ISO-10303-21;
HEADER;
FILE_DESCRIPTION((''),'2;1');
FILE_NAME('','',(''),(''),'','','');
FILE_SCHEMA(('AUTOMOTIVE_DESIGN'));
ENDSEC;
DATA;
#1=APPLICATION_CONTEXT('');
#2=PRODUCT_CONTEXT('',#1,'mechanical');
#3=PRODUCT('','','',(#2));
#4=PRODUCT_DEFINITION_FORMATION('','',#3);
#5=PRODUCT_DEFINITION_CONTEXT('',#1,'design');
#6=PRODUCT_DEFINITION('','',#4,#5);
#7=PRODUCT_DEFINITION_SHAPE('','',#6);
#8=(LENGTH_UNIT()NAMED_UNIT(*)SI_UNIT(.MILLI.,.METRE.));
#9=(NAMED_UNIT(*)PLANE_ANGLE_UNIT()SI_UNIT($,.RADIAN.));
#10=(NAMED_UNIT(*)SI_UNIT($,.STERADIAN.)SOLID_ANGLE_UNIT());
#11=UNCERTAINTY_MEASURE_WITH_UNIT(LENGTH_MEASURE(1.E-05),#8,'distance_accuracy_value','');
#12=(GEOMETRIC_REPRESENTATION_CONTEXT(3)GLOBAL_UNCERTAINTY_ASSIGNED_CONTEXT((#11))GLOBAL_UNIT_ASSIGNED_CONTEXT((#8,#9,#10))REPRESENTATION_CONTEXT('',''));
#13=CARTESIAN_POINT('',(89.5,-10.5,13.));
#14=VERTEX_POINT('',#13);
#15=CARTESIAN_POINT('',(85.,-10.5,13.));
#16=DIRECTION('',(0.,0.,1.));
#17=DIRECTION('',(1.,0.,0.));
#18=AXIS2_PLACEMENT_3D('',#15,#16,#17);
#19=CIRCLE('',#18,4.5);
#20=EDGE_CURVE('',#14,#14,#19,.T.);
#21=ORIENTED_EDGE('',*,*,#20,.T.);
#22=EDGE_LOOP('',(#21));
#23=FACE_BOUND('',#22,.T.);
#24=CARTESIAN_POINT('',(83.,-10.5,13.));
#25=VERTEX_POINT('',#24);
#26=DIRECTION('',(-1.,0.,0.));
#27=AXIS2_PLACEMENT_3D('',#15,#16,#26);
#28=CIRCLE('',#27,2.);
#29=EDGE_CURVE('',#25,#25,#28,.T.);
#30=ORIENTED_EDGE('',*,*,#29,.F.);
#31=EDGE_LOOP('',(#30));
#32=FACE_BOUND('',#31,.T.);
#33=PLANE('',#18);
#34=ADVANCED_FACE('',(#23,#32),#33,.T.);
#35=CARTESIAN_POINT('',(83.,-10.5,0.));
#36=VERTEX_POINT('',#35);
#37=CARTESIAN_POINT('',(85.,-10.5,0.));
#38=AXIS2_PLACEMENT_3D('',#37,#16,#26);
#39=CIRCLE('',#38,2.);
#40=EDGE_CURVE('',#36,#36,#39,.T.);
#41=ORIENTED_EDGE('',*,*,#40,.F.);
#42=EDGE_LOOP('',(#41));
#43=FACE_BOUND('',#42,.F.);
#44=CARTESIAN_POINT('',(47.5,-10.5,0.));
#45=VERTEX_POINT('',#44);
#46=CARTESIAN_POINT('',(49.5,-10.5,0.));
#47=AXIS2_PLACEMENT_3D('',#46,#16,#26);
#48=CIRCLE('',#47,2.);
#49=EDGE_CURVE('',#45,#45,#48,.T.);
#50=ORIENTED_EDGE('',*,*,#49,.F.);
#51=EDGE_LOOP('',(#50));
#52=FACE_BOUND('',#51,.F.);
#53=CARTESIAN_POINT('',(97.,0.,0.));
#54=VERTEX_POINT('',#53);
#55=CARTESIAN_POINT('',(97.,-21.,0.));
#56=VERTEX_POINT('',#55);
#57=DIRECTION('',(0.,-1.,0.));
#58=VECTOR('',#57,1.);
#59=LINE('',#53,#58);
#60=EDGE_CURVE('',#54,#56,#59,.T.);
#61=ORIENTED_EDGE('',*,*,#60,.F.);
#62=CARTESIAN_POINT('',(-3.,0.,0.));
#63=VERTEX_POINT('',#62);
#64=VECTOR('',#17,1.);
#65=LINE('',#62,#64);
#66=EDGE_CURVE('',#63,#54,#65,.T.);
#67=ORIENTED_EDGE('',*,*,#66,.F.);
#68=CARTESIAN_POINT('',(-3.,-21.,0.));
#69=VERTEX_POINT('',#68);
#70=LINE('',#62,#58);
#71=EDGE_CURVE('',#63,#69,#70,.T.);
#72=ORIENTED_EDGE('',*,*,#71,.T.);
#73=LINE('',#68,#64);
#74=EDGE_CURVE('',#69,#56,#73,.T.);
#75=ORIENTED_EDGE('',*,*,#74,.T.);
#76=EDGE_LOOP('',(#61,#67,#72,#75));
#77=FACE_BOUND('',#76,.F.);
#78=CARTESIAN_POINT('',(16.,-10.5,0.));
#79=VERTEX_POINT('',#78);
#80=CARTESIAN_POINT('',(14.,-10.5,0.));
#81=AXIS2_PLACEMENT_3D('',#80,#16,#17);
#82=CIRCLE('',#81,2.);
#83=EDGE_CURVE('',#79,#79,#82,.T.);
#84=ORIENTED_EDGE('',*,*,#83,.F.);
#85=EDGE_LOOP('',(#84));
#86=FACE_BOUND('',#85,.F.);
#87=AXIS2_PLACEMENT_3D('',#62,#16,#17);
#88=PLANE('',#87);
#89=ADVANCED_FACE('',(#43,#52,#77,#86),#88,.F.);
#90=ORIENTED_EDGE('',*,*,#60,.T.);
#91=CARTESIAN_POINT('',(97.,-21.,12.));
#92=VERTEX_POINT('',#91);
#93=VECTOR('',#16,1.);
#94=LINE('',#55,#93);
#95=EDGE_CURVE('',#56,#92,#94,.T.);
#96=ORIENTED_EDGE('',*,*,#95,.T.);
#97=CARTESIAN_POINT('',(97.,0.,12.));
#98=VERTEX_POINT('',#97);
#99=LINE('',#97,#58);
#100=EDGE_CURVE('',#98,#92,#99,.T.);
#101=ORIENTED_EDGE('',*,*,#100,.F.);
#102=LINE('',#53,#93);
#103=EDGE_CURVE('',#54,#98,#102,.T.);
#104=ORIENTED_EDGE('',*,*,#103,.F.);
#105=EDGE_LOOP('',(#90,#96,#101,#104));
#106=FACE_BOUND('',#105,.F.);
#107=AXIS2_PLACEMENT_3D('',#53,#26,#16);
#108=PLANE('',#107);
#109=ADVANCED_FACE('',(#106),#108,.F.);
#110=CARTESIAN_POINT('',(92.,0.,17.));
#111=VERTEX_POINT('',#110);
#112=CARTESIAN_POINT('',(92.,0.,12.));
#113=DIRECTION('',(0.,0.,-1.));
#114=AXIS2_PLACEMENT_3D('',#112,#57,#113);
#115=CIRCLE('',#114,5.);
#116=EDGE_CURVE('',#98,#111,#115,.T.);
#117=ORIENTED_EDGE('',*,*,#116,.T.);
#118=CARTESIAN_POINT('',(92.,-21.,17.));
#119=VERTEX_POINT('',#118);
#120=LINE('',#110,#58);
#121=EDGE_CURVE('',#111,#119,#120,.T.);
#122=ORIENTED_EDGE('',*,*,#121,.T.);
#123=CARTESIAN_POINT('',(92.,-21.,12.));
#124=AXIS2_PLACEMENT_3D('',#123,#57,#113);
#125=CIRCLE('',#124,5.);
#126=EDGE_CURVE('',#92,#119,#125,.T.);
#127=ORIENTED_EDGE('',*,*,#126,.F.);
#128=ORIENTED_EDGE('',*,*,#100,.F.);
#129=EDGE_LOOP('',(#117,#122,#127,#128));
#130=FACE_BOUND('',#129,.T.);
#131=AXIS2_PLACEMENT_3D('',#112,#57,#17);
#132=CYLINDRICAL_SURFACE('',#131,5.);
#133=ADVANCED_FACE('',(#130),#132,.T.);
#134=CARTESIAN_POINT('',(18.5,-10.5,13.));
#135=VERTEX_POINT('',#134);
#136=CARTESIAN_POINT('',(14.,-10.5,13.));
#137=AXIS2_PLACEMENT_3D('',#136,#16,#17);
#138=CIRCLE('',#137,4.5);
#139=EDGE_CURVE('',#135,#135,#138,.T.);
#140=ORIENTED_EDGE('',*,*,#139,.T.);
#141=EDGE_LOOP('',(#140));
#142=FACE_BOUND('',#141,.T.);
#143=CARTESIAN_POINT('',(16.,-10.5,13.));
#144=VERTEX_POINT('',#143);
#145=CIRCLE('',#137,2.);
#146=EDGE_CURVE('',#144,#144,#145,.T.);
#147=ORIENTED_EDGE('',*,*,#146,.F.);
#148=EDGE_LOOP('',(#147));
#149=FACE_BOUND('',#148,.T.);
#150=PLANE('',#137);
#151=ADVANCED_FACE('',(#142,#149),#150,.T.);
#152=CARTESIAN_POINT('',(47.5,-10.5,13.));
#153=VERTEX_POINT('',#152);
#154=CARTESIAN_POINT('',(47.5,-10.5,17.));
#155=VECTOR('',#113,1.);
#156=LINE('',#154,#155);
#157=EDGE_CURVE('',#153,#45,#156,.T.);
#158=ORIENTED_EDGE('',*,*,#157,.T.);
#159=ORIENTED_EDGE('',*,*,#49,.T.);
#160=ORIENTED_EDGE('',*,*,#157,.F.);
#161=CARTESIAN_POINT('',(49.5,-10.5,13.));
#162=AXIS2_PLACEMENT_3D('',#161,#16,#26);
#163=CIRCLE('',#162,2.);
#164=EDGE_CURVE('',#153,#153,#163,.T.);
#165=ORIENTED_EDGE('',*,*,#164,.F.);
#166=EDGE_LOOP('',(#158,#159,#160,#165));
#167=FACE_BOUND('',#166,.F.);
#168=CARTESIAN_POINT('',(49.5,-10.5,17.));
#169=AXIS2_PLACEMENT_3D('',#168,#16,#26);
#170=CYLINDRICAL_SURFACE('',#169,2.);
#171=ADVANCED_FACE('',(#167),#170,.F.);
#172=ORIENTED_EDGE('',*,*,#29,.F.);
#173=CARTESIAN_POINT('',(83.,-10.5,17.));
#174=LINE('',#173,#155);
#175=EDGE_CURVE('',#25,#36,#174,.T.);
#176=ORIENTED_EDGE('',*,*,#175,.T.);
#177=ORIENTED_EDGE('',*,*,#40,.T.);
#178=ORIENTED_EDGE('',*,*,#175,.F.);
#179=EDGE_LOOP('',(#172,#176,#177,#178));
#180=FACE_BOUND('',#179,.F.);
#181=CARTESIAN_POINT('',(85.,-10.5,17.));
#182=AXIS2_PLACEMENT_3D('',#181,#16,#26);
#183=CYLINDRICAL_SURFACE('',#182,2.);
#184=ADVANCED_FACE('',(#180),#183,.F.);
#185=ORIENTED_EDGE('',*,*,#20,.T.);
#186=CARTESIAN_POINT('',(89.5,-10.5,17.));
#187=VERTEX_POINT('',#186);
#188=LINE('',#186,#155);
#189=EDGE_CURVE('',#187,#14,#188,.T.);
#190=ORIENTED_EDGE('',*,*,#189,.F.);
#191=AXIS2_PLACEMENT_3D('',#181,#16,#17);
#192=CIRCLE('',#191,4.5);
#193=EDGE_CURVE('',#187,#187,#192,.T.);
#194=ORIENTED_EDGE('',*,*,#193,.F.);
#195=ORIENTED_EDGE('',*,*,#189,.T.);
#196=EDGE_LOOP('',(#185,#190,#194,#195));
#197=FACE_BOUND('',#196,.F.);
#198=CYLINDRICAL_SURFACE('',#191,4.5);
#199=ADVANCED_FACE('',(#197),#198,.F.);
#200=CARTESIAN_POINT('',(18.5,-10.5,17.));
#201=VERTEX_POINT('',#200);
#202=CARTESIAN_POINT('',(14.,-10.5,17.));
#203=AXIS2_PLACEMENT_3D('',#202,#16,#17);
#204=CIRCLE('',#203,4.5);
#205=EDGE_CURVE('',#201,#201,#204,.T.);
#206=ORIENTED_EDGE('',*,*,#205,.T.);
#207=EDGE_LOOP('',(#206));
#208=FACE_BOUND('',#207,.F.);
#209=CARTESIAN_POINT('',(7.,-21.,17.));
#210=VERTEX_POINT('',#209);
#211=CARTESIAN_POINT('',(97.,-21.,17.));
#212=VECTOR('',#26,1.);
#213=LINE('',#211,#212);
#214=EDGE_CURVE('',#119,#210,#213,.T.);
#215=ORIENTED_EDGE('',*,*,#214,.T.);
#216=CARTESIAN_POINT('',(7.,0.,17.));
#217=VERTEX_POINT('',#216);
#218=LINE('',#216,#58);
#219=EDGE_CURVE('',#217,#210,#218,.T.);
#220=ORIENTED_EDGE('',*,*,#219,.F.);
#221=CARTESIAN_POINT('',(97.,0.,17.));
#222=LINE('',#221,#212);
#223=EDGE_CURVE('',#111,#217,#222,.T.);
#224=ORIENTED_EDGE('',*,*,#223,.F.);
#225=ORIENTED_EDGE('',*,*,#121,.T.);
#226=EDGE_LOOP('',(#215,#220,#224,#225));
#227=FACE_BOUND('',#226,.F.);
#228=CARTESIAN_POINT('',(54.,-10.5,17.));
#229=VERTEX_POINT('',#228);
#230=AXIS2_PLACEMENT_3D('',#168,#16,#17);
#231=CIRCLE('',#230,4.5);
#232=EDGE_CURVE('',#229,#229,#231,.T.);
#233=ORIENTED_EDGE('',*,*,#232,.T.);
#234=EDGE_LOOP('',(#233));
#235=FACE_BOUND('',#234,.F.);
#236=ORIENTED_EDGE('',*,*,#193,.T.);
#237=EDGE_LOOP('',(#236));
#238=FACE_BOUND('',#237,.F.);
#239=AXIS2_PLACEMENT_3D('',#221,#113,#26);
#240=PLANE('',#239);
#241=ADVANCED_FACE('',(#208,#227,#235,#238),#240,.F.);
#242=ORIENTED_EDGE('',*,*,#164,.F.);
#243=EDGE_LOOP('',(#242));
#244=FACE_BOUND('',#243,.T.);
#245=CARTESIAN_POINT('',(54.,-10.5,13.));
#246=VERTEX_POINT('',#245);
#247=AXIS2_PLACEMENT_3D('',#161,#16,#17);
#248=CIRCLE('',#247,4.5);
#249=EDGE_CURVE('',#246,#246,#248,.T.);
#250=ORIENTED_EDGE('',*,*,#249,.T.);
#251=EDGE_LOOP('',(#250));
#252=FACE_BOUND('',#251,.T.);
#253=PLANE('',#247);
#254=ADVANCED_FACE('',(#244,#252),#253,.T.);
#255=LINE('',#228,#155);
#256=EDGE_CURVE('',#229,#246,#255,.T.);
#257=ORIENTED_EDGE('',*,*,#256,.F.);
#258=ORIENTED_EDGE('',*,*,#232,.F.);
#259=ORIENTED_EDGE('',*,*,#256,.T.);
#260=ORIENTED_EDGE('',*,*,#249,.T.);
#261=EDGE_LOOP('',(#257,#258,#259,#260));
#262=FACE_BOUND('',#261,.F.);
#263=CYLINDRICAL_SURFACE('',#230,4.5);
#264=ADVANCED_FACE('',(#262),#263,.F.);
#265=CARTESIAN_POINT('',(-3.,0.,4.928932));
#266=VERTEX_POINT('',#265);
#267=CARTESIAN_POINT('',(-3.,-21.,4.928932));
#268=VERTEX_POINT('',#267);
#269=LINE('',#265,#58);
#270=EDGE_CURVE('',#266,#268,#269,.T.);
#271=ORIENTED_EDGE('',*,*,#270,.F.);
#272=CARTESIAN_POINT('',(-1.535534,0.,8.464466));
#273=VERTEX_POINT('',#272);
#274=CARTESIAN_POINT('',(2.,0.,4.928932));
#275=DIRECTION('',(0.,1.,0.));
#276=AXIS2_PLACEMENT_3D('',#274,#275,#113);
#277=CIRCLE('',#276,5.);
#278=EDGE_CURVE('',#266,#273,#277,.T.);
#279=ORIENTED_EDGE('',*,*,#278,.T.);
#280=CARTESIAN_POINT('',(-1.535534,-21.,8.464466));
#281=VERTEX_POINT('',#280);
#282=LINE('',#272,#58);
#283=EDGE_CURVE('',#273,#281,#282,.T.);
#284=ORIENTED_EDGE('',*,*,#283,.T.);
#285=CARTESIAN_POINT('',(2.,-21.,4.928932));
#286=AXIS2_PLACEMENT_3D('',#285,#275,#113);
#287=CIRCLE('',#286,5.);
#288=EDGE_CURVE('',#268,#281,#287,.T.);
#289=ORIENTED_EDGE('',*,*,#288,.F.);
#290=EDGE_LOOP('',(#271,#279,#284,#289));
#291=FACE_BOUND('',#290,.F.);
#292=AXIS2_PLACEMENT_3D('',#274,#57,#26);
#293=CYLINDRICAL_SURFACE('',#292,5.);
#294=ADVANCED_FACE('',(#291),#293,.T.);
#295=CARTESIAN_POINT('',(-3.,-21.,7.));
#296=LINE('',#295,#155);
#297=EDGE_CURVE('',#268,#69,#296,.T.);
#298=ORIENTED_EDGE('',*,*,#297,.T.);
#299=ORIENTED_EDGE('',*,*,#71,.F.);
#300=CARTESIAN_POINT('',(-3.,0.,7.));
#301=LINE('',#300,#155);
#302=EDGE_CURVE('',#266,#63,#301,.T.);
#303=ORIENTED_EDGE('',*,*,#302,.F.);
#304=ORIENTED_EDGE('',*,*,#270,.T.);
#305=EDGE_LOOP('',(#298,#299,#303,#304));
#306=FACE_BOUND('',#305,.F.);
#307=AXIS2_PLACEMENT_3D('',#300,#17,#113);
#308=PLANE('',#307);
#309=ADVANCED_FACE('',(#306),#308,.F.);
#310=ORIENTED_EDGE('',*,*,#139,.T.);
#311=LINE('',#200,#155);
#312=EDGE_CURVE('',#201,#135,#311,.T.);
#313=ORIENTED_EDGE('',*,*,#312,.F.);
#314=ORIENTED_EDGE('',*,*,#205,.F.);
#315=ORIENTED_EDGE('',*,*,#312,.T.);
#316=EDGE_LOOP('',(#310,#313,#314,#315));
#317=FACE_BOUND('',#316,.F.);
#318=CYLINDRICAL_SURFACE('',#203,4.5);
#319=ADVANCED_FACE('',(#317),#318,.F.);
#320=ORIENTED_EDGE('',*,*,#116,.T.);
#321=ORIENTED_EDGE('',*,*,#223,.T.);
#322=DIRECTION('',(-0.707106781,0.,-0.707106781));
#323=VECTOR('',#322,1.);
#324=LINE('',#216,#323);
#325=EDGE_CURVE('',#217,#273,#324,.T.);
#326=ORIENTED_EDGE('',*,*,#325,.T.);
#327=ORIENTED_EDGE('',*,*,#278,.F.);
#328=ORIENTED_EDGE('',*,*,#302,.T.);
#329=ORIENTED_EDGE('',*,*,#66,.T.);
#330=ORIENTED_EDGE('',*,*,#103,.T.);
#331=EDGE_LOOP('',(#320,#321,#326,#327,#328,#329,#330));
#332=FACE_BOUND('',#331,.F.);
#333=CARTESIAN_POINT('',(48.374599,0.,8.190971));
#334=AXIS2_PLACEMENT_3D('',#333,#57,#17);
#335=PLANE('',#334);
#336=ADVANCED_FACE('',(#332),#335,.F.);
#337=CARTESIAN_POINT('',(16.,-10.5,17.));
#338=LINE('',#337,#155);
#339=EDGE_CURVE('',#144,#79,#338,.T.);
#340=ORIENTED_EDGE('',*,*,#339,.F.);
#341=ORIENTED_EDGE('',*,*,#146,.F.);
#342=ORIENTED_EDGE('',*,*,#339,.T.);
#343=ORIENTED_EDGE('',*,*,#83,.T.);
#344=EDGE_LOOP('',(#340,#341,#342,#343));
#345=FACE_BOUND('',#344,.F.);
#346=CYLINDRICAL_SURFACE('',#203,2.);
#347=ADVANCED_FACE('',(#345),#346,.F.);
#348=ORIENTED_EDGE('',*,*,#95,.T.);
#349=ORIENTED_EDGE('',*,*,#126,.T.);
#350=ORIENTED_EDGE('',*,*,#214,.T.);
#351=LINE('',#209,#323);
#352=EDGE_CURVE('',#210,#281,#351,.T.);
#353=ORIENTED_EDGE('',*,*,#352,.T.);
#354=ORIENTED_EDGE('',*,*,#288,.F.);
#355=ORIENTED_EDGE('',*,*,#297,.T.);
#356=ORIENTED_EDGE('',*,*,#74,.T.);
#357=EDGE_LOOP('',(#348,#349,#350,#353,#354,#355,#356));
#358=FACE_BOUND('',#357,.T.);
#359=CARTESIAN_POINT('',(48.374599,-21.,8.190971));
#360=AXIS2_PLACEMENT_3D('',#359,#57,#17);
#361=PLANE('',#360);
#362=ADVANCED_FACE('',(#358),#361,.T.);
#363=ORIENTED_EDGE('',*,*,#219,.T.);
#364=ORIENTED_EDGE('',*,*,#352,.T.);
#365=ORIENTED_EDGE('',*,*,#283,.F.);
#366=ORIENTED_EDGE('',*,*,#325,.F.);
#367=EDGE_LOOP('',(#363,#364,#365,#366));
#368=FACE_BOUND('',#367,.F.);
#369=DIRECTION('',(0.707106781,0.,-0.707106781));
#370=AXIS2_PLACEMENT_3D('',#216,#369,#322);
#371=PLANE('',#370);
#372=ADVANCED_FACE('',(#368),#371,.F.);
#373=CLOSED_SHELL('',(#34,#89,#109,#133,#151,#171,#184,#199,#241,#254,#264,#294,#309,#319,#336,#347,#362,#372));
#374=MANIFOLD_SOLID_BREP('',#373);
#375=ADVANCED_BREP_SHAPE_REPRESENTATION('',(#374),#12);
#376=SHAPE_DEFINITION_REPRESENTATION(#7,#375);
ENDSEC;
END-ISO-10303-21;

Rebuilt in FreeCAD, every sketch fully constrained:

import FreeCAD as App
import Part
import Sketcher
from FreeCAD import Vector


def edges_at(feature, points):
    """Names of the edges that pass closest to the given points."""
    edges = feature.Shape.Edges
    near = lambda p: min(range(len(edges)), key=lambda i: edges[i].distToShape(Part.Vertex(*p))[0])
    return sorted({f"Edge{near(p) + 1}" for p in points})


def add_polygon(sketch, points):
    """Adds a closed chain of lines whose ends are joined by coincident constraints."""
    first, n = sketch.GeometryCount, len(points)
    for a, b in zip(points, points[1:] + points[:1]):
        sketch.addGeometry(Part.LineSegment(App.Vector(*a, 0), App.Vector(*b, 0)), False)
    for i in range(n):
        sketch.addConstraint(Sketcher.Constraint("Coincident", first + i, 2, first + (i + 1) % n, 1))

doc = App.newDocument("Part")
params = doc.addObject("Spreadsheet::Sheet", "Params")
for row, (alias, value) in enumerate([
    ("sketch1_width", "100 mm"),
    ("sketch1_width2", "90 mm"),
    ("sketch1_height", "7 mm"),
    ("sketch1_height2", "17 mm"),
    ("pad1_length", "21 mm"),
    ("fillet_radius", "5 mm"),
    ("fillet2_radius", "5 mm"),
    ("sketch2_diameter", "4 mm"),
    ("pocket1_length", "25 mm"),
    ("sketch3_diameter", "9 mm"),
    ("pocket2_length", "4 mm"),
], start=1):
    params.set(f"A{row}", alias)
    params.set(f"B{row}", "=" + value)
    params.setAlias(f"B{row}", alias)

body = doc.addObject("PartDesign::Body", "Body")

sketch1 = doc.addObject("Sketcher::SketchObject", "Sketch")
body.addObject(sketch1)
sketch1.AttachmentSupport = (doc.XZ_Plane, [""])
sketch1.MapMode = "FlatFace"
add_polygon(sketch1, [(-3, 7), (-3, 0), (97, 0), (97, 17), (7, 17)])
sketch1.addConstraint(Sketcher.Constraint("Vertical", 0))
sketch1.addConstraint(Sketcher.Constraint("Horizontal", 1))
sketch1.addConstraint(Sketcher.Constraint("Vertical", 2))
sketch1.addConstraint(Sketcher.Constraint("Horizontal", 3))
sketch1.addConstraint(Sketcher.Constraint("PointOnObject", 0, 2, -1))
sketch1.addConstraint(Sketcher.Constraint("DistanceX", 1, 1, 1, 2, 100.0))
sketch1.addConstraint(Sketcher.Constraint("DistanceX", 3, 2, 3, 1, 90.0))
sketch1.addConstraint(Sketcher.Constraint("DistanceY", 0, 2, 0, 1, 7.0))
sketch1.addConstraint(Sketcher.Constraint("DistanceY", 2, 1, 2, 2, 17.0))
sketch1.addConstraint(Sketcher.Constraint("DistanceX", 0, 2, -1, 1, 3.0))
sketch1.setExpression("Constraints[10]", "Params.sketch1_width")
sketch1.setExpression("Constraints[11]", "Params.sketch1_width2")
sketch1.setExpression("Constraints[12]", "Params.sketch1_height")
sketch1.setExpression("Constraints[13]", "Params.sketch1_height2")
pad1 = doc.addObject("PartDesign::Pad", "Pad")
body.addObject(pad1)
pad1.Profile = sketch1
pad1.setExpression("Length", "Params.pad1_length")
doc.recompute()

fillet = doc.addObject("PartDesign::Fillet", "Fillet")
body.addObject(fillet)
fillet.Base = (pad1, edges_at(pad1, [(97, -10.5, 17)]))
fillet.setExpression("Radius", "Params.fillet_radius")
doc.recompute()

fillet2 = doc.addObject("PartDesign::Fillet", "Fillet001")
body.addObject(fillet2)
fillet2.Base = (fillet, edges_at(fillet, [(-3, -10.5, 7)]))
fillet2.setExpression("Radius", "Params.fillet2_radius")

sketch2 = doc.addObject("Sketcher::SketchObject", "Sketch001")
body.addObject(sketch2)
sketch2.AttachmentSupport = (doc.XY_Plane, [""])
sketch2.MapMode = "FlatFace"
sketch2.AttachmentOffset = App.Placement(Vector(0, 0, 17), App.Rotation())
sketch2.addGeometry(Part.Circle(Vector(85, -10.5, 0), Vector(0, 0, 1), 2), False)
sketch2.addGeometry(Part.Circle(Vector(49.5, -10.5, 0), Vector(0, 0, 1), 2), False)
sketch2.addGeometry(Part.Circle(Vector(14, -10.5, 0), Vector(0, 0, 1), 2), False)
sketch2.addConstraint(Sketcher.Constraint("Equal", 0, 1))
sketch2.addConstraint(Sketcher.Constraint("Equal", 1, 2))
sketch2.addConstraint(Sketcher.Constraint("Horizontal", 0, 3, 1, 3))
sketch2.addConstraint(Sketcher.Constraint("Horizontal", 1, 3, 2, 3))
sketch2.addConstraint(Sketcher.Constraint("Diameter", 0, 4.0))
sketch2.addConstraint(Sketcher.Constraint("DistanceX", -1, 1, 0, 3, 85.0))
sketch2.addConstraint(Sketcher.Constraint("DistanceX", -1, 1, 2, 3, 14.0))
sketch2.addConstraint(Sketcher.Constraint("DistanceY", 0, 3, -1, 1, 10.5))
sketch2.addConstraint(Sketcher.Constraint("DistanceX", -1, 1, 1, 3, 49.5))
sketch2.setExpression("Constraints[4]", "Params.sketch2_diameter")
pocket1 = doc.addObject("PartDesign::Pocket", "Pocket")
body.addObject(pocket1)
pocket1.Profile = sketch2
pocket1.setExpression("Length", "Params.pocket1_length")

sketch3 = doc.addObject("Sketcher::SketchObject", "Sketch002")
body.addObject(sketch3)
sketch3.AttachmentSupport = (doc.XY_Plane, [""])
sketch3.MapMode = "FlatFace"
sketch3.AttachmentOffset = App.Placement(Vector(0, 0, 17), App.Rotation())
sketch3.addGeometry(Part.Circle(Vector(14, -10.5, 0), Vector(0, 0, 1), 4.5), False)
sketch3.addGeometry(Part.Circle(Vector(49.5, -10.5, 0), Vector(0, 0, 1), 4.5), False)
sketch3.addGeometry(Part.Circle(Vector(85, -10.5, 0), Vector(0, 0, 1), 4.5), False)
sketch3.addConstraint(Sketcher.Constraint("Equal", 0, 1))
sketch3.addConstraint(Sketcher.Constraint("Equal", 1, 2))
sketch3.addConstraint(Sketcher.Constraint("Horizontal", 0, 3, 1, 3))
sketch3.addConstraint(Sketcher.Constraint("Horizontal", 1, 3, 2, 3))
sketch3.addConstraint(Sketcher.Constraint("Diameter", 0, 9.0))
sketch3.addConstraint(Sketcher.Constraint("DistanceX", -1, 1, 0, 3, 14.0))
sketch3.addConstraint(Sketcher.Constraint("DistanceX", -1, 1, 2, 3, 85.0))
sketch3.addConstraint(Sketcher.Constraint("DistanceY", 0, 3, -1, 1, 10.5))
sketch3.addConstraint(Sketcher.Constraint("DistanceX", -1, 1, 1, 3, 49.5))
sketch3.setExpression("Constraints[4]", "Params.sketch3_diameter")
pocket2 = doc.addObject("PartDesign::Pocket", "Pocket001")
body.addObject(pocket2)
pocket2.Profile = sketch3
pocket2.setExpression("Length", "Params.pocket2_length")

doc.recompute()
